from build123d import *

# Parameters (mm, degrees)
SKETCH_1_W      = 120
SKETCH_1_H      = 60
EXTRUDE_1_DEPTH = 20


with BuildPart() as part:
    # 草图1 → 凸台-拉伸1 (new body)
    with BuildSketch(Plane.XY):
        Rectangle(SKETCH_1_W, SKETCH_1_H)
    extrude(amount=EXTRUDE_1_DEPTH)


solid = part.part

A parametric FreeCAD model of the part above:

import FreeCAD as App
import Part
import Sketcher

V = App.Vector
Q = App.Units.Quantity


def add_polygon(sketch, points):
    """Adds a closed chain of lines whose ends are joined by coincident constraints."""
    first, n = sketch.GeometryCount, len(points)
    for a, b in zip(points, points[1:] + points[:1]):
        sketch.addGeometry(Part.LineSegment(App.Vector(*a, 0), App.Vector(*b, 0)), False)
    for i in range(n):
        sketch.addConstraint(Sketcher.Constraint("Coincident", first + i, 2, first + (i + 1) % n, 1))

doc = App.newDocument("Part")
body = doc.addObject("PartDesign::Body", "Body")

# Sketch on XY plane
sketch1 = body.newObject("Sketcher::SketchObject", "Sketch")
sketch1.AttachmentSupport = (doc.getObject("XY_Plane"), [""])
sketch1.MapMode = "FlatFace"
add_polygon(sketch1, [(-60, 30), (-60, -30), (60, -30), (60, 30)])  # lines 0-3
sketch1.addConstraint(Sketcher.Constraint("Vertical", 0))
sketch1.addConstraint(Sketcher.Constraint("Horizontal", 1))
sketch1.addConstraint(Sketcher.Constraint("Vertical", 2))
sketch1.addConstraint(Sketcher.Constraint("Horizontal", 3))
sketch1.addConstraint(Sketcher.Constraint("Symmetric", 0, 2, 2, 2, -1, 1))
sketch1.addConstraint(Sketcher.Constraint("DistanceX", 1, 1, 1, 2, Q("120 mm")))
sketch1.addConstraint(Sketcher.Constraint("DistanceY", 0, 2, 0, 1, Q("60 mm")))
pad1 = body.newObject("PartDesign::Pad", "Pad")
pad1.Profile = sketch1
pad1.Length = 20

doc.recompute()
